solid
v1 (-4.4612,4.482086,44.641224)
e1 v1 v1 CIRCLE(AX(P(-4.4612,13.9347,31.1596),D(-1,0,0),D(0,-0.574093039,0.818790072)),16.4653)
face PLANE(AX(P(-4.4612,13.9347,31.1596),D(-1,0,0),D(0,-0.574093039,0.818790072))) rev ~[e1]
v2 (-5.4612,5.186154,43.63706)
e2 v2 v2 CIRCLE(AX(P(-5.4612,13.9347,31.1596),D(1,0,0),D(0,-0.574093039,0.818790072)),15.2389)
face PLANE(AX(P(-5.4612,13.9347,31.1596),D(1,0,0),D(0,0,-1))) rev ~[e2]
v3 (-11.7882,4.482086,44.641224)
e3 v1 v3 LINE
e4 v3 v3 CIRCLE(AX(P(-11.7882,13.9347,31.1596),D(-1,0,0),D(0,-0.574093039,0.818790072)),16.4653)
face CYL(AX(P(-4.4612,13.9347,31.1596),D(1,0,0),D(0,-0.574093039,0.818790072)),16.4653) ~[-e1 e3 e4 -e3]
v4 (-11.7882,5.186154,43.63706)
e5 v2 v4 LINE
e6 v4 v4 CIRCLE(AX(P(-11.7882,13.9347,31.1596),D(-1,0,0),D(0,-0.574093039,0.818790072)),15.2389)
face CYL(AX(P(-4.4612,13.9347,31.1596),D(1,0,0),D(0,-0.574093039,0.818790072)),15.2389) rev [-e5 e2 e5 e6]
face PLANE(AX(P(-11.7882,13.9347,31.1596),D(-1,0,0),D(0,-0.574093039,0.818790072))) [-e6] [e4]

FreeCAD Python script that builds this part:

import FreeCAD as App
import Part
import Sketcher
from FreeCAD import Vector
Q = App.Units.Quantity

doc = App.newDocument("Part")
body = doc.addObject("PartDesign::Body", "Body")

# Sketch on YZ plane
sketch1 = body.newObject("Sketcher::SketchObject", "Sketch")
sketch1.AttachmentSupport = (doc.getObject("YZ_Plane"), [""])
sketch1.MapMode = "FlatFace"
sketch1.AttachmentOffset = App.Placement(Vector(0, 0, -4.4612), App.Rotation())
sketch1.addGeometry([
    Part.Circle(Vector(14, 31, 0), Vector(0, 0, 1), 16),
    Part.Circle(Vector(14, 31, 0), Vector(0, 0, 1), 15),
], False)
sketch1.addConstraint([
    Sketcher.Constraint("Coincident", 1, 3, 0, 3),
    Sketcher.Constraint("Diameter", 0, Q("32.9306 mm")),
    Sketcher.Constraint("Diameter", 1, Q("30.4778 mm")),
    Sketcher.Constraint("DistanceX", -1, 1, 0, 3, Q("13.9347 mm")),
    Sketcher.Constraint("DistanceY", -1, 1, 0, 3, Q("31.1596 mm")),
])
pad1 = body.newObject("PartDesign::Pad", "Pad")
pad1.Profile = sketch1
pad1.Length = 7.327
pad1.Reversed = True

# Sketch on YZ plane
sketch2 = body.newObject("Sketcher::SketchObject", "Sketch001")
sketch2.AttachmentSupport = (doc.getObject("YZ_Plane"), [""])
sketch2.MapMode = "FlatFace"
sketch2.AttachmentOffset = App.Placement(Vector(0, 0, -4.4612), App.Rotation())
sketch2.addGeometry(Part.Circle(Vector(14, 31, 0), Vector(0, 0, 1), 15), False)
sketch2.addConstraint([
    Sketcher.Constraint("Diameter", 0, Q("30.4778 mm")),
    Sketcher.Constraint("DistanceX", -1, 1, 0, 3, Q("13.9347 mm")),
    Sketcher.Constraint("DistanceY", -1, 1, 0, 3, Q("31.1596 mm")),
])
pad2 = body.newObject("PartDesign::Pad", "Pad001")
pad2.Profile = sketch2
pad2.Length = 1
pad2.Reversed = True

doc.recompute()
